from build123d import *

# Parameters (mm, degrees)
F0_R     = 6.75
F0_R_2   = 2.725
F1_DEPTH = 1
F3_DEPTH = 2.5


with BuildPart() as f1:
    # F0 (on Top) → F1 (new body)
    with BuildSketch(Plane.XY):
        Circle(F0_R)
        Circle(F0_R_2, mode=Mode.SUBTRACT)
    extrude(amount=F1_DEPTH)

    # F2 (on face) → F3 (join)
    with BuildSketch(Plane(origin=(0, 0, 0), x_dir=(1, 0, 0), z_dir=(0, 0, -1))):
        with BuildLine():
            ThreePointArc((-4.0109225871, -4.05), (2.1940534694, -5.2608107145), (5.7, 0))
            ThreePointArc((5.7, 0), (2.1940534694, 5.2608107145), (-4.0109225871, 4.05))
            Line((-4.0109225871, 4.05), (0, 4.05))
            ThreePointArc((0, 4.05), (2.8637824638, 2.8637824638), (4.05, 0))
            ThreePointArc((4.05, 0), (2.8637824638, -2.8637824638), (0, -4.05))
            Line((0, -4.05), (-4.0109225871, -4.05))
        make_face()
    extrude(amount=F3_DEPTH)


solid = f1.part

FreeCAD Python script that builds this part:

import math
import FreeCAD as App
import Part
import Sketcher
Q = App.Units.Quantity

doc = App.newDocument("Part")
body = doc.addObject("PartDesign::Body", "Body")

# Sketch on XY plane
sketch1 = body.newObject("Sketcher::SketchObject", "Sketch")
sketch1.AttachmentSupport = (doc.getObject("XY_Plane"), [""])
sketch1.MapMode = "FlatFace"
sketch1.addGeometry([
    Part.Circle(App.Vector(0, 0, 0), App.Vector(0, 0, 1), 6.75),
    Part.Circle(App.Vector(0, 0, 0), App.Vector(0, 0, 1), 2.725),
], False)
sketch1.addConstraint([
    Sketcher.Constraint("Coincident", 0, 3, -1, 1),
    Sketcher.Constraint("Coincident", 1, 3, -1, 1),
    Sketcher.Constraint("Diameter", 0, Q("13.5 mm")),
    Sketcher.Constraint("Diameter", 1, Q("5.45 mm")),
])
pad1 = body.newObject("PartDesign::Pad", "Pad")
pad1.Profile = sketch1
pad1.Length = 1

# Sketch on XY plane
sketch2 = body.newObject("Sketcher::SketchObject", "Sketch001")
sketch2.AttachmentSupport = (doc.getObject("XY_Plane"), [""])
sketch2.MapMode = "FlatFace"
sketch2.addGeometry([
    Part.ArcOfCircle(Part.Circle(App.Vector(0, 0, 0), App.Vector(0, 0, 1), 5.7), math.radians(0), math.radians(134.722246)),  # 0
    Part.ArcOfCircle(Part.Circle(App.Vector(0, 0, 0), App.Vector(0, 0, 1), 5.7), math.radians(-134.722246), math.radians(0)),  # 1
    Part.LineSegment(App.Vector(-4.010923, -4.05, 0), App.Vector(0, -4.05, 0)),  # 2
    Part.ArcOfCircle(Part.Circle(App.Vector(0, 0, 0), App.Vector(0, 0, 1), 4.05), math.radians(-90), math.radians(0)),  # 3
    Part.ArcOfCircle(Part.Circle(App.Vector(0, 0, 0), App.Vector(0, 0, 1), 4.05), math.radians(0), math.radians(90)),  # 4
    Part.LineSegment(App.Vector(0, 4.05, 0), App.Vector(-4.010923, 4.05, 0)),  # 5
], False)
sketch2.addConstraint([
    Sketcher.Constraint("Tangent", 0, 1, 1, 2),
    Sketcher.Constraint("Coincident", 1, 1, 2, 1),
    Sketcher.Constraint("Tangent", 2, 2, 3, 1),
    Sketcher.Constraint("Tangent", 3, 2, 4, 1),
    Sketcher.Constraint("Tangent", 4, 2, 5, 1),
    Sketcher.Constraint("Coincident", 5, 2, 0, 2),
    Sketcher.Constraint("Horizontal", 2),
    Sketcher.Constraint("Horizontal", 5),
    Sketcher.Constraint("Coincident", 0, 3, -1, 1),
    Sketcher.Constraint("Coincident", 3, 3, -1, 1),
    Sketcher.Constraint("Equal", 0, 1),
    Sketcher.Constraint("Equal", 3, 4),
    Sketcher.Constraint("PointOnObject", 0, 1, -1),
    Sketcher.Constraint("PointOnObject", 3, 2, -1),
    Sketcher.Constraint("Radius", 0, Q("5.7 mm")),
    Sketcher.Constraint("Radius", 3, Q("4.05 mm")),
])
pad2 = body.newObject("PartDesign::Pad", "Pad001")
pad2.Profile = sketch2
pad2.Length = 2.5
pad2.Reversed = True

doc.recompute()
